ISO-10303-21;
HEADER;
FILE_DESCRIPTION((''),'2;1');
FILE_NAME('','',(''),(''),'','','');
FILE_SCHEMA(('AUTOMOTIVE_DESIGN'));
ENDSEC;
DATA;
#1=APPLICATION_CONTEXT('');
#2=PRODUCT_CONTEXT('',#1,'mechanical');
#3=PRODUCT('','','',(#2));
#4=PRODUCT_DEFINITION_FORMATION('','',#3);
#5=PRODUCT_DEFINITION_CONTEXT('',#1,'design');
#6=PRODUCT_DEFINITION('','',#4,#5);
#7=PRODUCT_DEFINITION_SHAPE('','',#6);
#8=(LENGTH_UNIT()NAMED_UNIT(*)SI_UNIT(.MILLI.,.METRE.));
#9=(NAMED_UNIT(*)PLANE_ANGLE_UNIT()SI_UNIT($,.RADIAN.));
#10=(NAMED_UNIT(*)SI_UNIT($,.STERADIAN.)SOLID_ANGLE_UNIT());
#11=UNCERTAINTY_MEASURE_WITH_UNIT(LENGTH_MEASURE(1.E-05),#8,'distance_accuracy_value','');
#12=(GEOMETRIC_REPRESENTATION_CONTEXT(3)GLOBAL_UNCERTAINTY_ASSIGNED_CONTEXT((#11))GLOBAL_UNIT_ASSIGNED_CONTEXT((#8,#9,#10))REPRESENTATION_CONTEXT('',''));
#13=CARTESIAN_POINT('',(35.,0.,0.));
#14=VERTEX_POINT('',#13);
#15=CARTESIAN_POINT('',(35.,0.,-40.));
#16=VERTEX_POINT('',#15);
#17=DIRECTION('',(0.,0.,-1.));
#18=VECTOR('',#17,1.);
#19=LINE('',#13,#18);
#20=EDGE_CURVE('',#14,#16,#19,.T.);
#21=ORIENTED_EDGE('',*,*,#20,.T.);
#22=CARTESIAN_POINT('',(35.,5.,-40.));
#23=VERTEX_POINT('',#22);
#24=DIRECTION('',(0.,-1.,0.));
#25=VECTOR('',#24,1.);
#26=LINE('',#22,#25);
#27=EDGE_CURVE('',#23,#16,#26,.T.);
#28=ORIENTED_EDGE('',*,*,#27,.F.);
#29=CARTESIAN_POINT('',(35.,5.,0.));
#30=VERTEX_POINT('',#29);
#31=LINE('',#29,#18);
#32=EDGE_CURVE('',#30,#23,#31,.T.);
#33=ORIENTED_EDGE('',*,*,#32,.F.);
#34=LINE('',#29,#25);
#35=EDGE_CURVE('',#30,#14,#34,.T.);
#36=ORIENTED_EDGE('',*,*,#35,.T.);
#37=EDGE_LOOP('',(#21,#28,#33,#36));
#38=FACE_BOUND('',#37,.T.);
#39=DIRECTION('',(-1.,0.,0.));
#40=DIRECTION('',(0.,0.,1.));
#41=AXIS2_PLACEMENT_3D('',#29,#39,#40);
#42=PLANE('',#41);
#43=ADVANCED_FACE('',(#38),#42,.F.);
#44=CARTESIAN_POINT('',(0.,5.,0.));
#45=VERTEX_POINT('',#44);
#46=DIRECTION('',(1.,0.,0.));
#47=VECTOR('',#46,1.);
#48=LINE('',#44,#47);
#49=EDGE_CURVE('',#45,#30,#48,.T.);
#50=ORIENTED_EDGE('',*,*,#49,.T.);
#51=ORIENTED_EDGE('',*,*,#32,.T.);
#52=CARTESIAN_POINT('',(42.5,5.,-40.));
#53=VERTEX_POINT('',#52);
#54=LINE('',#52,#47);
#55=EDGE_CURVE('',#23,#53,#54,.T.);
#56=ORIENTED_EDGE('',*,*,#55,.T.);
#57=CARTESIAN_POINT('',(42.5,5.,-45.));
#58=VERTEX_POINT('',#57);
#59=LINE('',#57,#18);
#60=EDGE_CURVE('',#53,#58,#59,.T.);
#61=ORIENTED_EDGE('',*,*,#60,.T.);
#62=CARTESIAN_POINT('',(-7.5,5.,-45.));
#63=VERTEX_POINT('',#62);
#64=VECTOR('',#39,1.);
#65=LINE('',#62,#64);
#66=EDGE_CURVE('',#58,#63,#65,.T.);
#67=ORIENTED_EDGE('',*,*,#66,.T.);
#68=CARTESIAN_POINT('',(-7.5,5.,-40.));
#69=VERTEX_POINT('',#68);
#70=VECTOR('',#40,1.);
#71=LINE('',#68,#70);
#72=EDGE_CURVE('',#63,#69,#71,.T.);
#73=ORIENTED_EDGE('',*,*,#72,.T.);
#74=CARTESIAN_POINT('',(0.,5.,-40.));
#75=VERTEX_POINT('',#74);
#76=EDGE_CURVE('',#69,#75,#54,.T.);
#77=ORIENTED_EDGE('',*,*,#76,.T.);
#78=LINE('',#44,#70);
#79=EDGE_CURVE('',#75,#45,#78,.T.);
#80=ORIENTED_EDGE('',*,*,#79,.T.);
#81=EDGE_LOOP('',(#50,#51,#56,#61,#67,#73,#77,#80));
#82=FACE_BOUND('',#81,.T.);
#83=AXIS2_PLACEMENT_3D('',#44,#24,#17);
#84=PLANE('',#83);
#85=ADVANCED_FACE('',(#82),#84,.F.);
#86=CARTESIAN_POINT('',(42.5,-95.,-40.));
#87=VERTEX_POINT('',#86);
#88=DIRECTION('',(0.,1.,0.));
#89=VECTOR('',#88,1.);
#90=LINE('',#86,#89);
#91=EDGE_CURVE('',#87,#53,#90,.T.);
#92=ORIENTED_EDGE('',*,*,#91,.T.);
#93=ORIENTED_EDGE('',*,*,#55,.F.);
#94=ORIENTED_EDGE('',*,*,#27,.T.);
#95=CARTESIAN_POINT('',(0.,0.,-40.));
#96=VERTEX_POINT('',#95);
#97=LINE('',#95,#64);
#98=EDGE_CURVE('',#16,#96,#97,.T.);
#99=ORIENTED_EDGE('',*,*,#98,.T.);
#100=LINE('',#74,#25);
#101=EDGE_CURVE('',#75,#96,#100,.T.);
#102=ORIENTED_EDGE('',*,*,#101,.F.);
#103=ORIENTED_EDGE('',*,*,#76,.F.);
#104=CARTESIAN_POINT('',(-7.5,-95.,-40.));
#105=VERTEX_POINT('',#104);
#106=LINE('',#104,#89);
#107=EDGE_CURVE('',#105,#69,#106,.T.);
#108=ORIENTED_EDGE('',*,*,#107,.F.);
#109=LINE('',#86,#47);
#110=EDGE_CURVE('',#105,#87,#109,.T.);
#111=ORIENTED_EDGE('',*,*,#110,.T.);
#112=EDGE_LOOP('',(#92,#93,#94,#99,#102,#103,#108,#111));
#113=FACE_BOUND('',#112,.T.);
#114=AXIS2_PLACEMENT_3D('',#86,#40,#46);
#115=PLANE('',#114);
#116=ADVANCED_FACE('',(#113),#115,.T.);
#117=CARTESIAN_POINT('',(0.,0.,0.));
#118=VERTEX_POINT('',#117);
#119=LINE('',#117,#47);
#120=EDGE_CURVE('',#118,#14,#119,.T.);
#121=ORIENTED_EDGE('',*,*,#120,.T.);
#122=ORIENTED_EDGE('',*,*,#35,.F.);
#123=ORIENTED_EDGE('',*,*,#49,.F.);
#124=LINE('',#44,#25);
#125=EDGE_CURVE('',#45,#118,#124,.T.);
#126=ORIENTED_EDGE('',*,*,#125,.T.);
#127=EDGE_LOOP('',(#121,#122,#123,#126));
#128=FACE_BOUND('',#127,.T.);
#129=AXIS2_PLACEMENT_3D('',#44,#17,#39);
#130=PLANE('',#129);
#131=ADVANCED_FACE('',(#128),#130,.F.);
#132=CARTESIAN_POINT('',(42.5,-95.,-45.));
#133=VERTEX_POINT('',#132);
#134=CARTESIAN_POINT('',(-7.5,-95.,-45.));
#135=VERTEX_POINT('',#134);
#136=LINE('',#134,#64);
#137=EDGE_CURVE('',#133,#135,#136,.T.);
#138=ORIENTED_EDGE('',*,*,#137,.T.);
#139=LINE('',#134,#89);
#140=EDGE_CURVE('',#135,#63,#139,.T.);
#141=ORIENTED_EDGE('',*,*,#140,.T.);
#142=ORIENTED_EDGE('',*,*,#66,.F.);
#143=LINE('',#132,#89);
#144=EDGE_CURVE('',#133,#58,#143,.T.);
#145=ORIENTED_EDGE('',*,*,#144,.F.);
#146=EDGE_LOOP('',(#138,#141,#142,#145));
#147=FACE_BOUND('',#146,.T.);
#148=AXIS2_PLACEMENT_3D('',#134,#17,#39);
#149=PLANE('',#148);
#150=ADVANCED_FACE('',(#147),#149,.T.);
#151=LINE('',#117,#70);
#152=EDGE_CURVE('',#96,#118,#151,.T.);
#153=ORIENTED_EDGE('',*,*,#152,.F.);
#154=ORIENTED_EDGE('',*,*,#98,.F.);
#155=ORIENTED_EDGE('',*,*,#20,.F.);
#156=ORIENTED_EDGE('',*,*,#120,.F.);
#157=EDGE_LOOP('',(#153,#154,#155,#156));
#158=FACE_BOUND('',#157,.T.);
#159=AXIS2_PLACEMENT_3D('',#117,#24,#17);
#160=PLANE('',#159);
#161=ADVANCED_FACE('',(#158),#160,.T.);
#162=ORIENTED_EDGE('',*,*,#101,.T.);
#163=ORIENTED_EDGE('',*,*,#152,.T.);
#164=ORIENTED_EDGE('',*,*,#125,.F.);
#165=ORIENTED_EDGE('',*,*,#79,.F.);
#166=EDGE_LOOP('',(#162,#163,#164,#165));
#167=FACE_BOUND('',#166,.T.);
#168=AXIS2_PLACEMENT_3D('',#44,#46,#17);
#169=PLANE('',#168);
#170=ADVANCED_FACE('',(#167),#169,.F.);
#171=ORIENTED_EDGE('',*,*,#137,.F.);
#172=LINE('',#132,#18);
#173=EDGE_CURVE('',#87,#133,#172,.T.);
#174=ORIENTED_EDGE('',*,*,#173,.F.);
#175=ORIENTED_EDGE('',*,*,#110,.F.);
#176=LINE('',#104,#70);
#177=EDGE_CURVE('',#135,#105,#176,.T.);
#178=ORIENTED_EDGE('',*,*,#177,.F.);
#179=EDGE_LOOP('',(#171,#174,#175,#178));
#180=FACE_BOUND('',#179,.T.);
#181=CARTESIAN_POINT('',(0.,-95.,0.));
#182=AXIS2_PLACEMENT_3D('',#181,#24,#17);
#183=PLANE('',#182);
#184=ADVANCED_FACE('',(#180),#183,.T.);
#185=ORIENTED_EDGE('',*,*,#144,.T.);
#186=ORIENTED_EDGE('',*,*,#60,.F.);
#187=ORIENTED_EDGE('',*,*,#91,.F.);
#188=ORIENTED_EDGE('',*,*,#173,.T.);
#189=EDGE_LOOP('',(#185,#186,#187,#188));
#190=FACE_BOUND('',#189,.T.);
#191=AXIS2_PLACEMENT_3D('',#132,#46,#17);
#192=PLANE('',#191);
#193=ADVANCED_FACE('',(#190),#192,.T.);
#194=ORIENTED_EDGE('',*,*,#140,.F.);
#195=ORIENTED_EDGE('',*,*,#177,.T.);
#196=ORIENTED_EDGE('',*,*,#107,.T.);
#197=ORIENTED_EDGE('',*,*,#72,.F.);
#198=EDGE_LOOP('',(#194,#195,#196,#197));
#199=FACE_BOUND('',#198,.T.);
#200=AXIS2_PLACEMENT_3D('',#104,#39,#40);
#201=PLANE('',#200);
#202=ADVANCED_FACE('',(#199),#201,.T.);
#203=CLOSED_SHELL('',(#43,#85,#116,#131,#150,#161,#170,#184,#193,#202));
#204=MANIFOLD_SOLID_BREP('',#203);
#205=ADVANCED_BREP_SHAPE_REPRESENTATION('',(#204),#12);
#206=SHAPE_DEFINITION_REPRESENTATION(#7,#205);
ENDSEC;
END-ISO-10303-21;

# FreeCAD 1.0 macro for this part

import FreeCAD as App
import Part
import Sketcher

V = App.Vector


def add_polygon(sketch, points):
    """Adds a closed chain of lines whose ends are joined by coincident constraints."""
    first, n = sketch.GeometryCount, len(points)
    for a, b in zip(points, points[1:] + points[:1]):
        sketch.addGeometry(Part.LineSegment(App.Vector(*a, 0), App.Vector(*b, 0)), False)
    for i in range(n):
        sketch.addConstraint(Sketcher.Constraint("Coincident", first + i, 2, first + (i + 1) % n, 1))

doc = App.newDocument("Part")
body = doc.addObject("PartDesign::Body", "Body")

sketch1 = body.newObject("Sketcher::SketchObject", "Sketch")
sketch1.AttachmentSupport = (doc.getObject("XZ_Plane"), [""])
sketch1.MapMode = "FlatFace"
add_polygon(sketch1, [(0, -40), (0, 0), (35, 0), (35, -40)])
sketch1.addConstraint([
    Sketcher.Constraint("Vertical", 0),
    Sketcher.Constraint("Horizontal", 1),
    Sketcher.Constraint("Vertical", 2),
    Sketcher.Constraint("Horizontal", 3),
    Sketcher.Constraint("Coincident", 0, 2, -1, 1),
    Sketcher.Constraint("DistanceX", 1, 1, 1, 2, 35.0),
    Sketcher.Constraint("DistanceY", 0, 1, 0, 2, 40.0),
])
pad1 = body.newObject("PartDesign::Pad", "Pad")
pad1.Profile = sketch1
pad1.Length = 5
pad1.Reversed = True

sketch2 = body.newObject("Sketcher::SketchObject", "Sketch001")
sketch2.AttachmentSupport = (doc.getObject("XZ_Plane"), [""])
sketch2.MapMode = "FlatFace"
sketch2.AttachmentOffset = App.Placement(V(0, 0, -5), App.Rotation())
add_polygon(sketch2, [(-8, -45), (-8, -40), (42, -40), (42, -45)])
sketch2.addConstraint([
    Sketcher.Constraint("Vertical", 0),
    Sketcher.Constraint("Horizontal", 1),
    Sketcher.Constraint("Vertical", 2),
    Sketcher.Constraint("Horizontal", 3),
    Sketcher.Constraint("DistanceX", 1, 1, 1, 2, 50.0),
    Sketcher.Constraint("DistanceY", 0, 1, 0, 2, 5.0),
    Sketcher.Constraint("DistanceY", 0, 2, -1, 1, 40.0),
    Sketcher.Constraint("DistanceX", 0, 2, -1, 1, 7.5),
])
pad2 = body.newObject("PartDesign::Pad", "Pad001")
pad2.Profile = sketch2
pad2.Length = 100

doc.recompute()
